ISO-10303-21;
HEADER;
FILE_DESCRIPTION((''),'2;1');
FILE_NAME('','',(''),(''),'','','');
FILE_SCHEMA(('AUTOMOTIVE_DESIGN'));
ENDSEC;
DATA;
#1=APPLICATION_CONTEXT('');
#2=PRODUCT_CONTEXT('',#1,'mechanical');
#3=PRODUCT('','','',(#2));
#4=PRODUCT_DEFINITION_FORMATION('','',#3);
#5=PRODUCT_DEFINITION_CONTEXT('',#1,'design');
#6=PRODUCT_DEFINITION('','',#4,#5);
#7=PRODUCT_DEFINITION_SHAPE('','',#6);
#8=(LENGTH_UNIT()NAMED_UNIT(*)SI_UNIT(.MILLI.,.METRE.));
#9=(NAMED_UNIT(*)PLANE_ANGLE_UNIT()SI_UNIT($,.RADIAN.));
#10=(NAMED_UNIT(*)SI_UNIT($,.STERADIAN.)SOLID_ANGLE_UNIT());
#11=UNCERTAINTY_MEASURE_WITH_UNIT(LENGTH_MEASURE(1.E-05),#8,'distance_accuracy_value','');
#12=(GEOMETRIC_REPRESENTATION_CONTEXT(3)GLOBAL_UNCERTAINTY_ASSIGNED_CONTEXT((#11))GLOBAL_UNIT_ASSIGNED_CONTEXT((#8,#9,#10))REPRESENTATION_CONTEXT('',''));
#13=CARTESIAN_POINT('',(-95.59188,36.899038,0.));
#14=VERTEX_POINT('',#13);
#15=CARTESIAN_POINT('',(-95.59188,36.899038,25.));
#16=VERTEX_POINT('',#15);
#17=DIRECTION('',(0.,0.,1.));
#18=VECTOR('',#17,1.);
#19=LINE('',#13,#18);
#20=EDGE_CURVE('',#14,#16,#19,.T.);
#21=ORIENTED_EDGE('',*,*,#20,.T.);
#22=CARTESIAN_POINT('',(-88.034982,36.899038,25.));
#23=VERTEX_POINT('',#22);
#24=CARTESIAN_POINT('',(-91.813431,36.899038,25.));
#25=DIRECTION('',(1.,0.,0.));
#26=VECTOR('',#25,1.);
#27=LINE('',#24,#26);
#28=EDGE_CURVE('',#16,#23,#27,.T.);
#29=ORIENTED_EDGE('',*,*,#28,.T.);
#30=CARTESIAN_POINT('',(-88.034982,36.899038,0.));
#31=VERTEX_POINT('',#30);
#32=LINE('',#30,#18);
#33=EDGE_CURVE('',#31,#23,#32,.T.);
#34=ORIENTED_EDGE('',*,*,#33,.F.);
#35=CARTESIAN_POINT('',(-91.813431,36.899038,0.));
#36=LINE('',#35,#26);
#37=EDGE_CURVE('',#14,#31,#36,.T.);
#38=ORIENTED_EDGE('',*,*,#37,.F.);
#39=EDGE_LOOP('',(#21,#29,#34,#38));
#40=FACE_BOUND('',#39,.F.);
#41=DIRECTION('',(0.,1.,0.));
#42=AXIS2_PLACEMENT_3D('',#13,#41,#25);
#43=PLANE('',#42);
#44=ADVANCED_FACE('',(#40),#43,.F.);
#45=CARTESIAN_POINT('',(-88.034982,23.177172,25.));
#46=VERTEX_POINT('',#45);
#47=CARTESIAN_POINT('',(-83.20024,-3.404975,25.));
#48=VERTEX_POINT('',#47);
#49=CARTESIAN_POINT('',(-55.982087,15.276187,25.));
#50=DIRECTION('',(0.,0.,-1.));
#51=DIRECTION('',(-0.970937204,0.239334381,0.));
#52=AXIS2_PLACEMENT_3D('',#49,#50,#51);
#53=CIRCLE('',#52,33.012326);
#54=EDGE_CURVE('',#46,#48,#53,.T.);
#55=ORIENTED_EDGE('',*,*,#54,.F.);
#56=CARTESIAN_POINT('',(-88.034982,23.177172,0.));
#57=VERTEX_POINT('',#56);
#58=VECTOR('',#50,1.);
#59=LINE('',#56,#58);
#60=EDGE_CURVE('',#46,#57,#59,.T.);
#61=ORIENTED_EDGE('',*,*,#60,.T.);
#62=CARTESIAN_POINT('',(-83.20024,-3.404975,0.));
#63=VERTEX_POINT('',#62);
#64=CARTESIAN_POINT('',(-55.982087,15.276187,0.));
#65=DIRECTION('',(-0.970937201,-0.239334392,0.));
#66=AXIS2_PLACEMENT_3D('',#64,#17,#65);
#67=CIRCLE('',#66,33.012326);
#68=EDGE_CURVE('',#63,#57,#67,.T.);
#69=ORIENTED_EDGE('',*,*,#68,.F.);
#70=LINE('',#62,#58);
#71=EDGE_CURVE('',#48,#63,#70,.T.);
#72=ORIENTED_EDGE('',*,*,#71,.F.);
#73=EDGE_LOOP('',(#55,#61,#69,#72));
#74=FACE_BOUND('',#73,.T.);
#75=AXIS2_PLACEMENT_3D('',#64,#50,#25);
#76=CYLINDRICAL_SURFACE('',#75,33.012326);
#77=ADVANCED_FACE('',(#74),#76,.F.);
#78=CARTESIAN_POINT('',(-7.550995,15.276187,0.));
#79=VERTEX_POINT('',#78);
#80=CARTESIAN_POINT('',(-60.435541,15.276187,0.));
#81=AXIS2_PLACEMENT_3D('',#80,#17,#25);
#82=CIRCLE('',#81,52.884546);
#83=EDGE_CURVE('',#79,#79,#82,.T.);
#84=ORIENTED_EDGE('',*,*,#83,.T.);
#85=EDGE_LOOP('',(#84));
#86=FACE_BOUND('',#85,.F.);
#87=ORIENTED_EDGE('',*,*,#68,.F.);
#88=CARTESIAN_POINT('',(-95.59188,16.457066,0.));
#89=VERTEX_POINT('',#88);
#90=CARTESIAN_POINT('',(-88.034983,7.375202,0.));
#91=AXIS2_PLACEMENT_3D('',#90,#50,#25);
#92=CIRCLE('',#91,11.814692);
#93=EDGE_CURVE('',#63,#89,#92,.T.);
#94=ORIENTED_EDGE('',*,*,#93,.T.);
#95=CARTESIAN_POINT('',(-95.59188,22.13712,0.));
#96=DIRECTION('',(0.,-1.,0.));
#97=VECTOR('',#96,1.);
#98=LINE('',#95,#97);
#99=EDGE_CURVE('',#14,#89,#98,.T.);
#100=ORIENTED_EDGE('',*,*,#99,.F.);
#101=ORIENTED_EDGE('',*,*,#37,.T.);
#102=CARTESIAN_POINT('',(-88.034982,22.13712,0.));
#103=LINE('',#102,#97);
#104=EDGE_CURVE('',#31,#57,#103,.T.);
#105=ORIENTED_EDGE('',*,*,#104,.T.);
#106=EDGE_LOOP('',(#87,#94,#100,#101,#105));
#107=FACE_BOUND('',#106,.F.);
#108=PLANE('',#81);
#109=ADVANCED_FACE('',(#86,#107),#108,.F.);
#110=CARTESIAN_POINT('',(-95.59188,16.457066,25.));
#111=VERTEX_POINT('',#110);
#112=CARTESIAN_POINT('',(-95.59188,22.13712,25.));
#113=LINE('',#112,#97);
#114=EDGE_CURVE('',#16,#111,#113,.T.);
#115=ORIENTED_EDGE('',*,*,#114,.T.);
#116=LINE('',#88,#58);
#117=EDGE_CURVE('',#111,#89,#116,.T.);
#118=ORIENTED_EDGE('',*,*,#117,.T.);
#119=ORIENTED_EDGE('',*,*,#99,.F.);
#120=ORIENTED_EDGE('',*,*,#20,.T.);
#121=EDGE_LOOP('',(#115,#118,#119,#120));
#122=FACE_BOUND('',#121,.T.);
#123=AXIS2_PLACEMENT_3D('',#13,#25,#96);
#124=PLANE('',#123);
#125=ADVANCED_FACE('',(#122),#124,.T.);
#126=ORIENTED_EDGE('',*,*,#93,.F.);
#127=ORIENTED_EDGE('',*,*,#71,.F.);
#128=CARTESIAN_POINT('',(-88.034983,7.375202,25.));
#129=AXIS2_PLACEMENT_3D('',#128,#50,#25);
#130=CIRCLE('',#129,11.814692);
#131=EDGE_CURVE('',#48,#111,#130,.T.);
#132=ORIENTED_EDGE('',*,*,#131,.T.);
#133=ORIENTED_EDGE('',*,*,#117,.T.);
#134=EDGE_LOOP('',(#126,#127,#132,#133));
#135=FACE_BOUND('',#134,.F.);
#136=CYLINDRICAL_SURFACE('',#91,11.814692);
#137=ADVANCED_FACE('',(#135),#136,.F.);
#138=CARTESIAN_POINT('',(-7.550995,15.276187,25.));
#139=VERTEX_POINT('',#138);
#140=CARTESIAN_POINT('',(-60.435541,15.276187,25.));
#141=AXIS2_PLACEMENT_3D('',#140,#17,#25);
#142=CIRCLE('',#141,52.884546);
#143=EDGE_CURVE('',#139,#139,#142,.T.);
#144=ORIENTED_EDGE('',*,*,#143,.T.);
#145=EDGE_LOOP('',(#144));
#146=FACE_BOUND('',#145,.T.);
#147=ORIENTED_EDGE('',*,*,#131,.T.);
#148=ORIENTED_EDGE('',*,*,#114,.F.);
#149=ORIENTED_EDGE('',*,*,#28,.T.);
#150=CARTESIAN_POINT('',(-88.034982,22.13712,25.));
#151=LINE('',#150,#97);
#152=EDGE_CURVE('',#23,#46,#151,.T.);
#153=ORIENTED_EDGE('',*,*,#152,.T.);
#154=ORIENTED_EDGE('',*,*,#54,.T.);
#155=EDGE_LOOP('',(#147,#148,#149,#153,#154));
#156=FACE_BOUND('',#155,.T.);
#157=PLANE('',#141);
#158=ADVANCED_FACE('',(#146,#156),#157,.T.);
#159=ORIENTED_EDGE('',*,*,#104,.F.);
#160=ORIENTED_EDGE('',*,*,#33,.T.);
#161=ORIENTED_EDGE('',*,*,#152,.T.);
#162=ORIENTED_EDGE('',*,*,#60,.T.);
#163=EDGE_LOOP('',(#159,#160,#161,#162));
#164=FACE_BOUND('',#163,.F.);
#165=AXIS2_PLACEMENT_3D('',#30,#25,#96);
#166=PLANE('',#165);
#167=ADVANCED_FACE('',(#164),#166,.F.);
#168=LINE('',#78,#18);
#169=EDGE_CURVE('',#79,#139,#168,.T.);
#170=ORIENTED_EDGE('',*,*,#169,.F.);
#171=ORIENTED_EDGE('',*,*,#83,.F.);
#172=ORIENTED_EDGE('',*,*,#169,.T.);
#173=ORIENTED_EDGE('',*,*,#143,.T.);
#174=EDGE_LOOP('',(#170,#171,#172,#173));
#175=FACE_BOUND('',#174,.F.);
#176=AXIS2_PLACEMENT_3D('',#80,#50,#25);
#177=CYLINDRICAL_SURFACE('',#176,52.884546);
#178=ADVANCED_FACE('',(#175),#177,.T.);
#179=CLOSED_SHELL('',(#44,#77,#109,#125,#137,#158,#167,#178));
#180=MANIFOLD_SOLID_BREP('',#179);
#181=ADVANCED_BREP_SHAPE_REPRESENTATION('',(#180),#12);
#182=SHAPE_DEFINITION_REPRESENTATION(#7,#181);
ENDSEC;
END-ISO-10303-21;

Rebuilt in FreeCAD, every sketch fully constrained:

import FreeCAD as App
import Part
import Sketcher

V = App.Vector
Q = App.Units.Quantity

doc = App.newDocument("Part")
body = doc.addObject("PartDesign::Body", "Body")

# Sketch on XY plane
sketch1 = doc.addObject("Sketcher::SketchObject", "Sketch")
body.addObject(sketch1)
sketch1.AttachmentSupport = (doc.XY_Plane, [""])
sketch1.MapMode = "FlatFace"
sketch1.addGeometry(Part.Circle(V(-60, 15, 0), V(0, 0, 1), 53), False)
sketch1.addGeometry(Part.Circle(V(-56, 15, 0), V(0, 0, 1), 33), False)
sketch1.addConstraint(Sketcher.Constraint("Horizontal", 0, 3, 1, 3))
sketch1.addConstraint(Sketcher.Constraint("Diameter", 0, Q("105.769092 mm")))
sketch1.addConstraint(Sketcher.Constraint("Diameter", 1, Q("66.024652 mm")))
sketch1.addConstraint(Sketcher.Constraint("DistanceX", 0, 3, -1, 1, Q("60.435541 mm")))
sketch1.addConstraint(Sketcher.Constraint("DistanceY", -1, 1, 0, 3, Q("15.276187 mm")))
sketch1.addConstraint(Sketcher.Constraint("DistanceX", 1, 3, -1, 1, Q("55.982087 mm")))
pad1 = doc.addObject("PartDesign::Pad", "Pad")
body.addObject(pad1)
pad1.Profile = sketch1
pad1.Length = 25

# Sketch on XY plane
sketch2 = doc.addObject("Sketcher::SketchObject", "Sketch001")
body.addObject(sketch2)
sketch2.AttachmentSupport = (doc.XY_Plane, [""])
sketch2.MapMode = "FlatFace"
sketch2.addGeometry(Part.LineSegment(V(-96, 7, 0), V(-96, 37, 0)), False)
sketch2.addGeometry(Part.LineSegment(V(-96, 37, 0), V(-88, 37, 0)), False)
sketch2.addGeometry(Part.LineSegment(V(-88, 37, 0), V(-88, 7, 0)), False)
sketch2.addGeometry(Part.LineSegment(V(-88, 7, 0), V(-96, 7, 0)), False)
sketch2.addConstraint(Sketcher.Constraint("Coincident", 0, 2, 1, 1))
sketch2.addConstraint(Sketcher.Constraint("Coincident", 1, 2, 2, 1))
sketch2.addConstraint(Sketcher.Constraint("Coincident", 2, 2, 3, 1))
sketch2.addConstraint(Sketcher.Constraint("Coincident", 3, 2, 0, 1))
sketch2.addConstraint(Sketcher.Constraint("Vertical", 0))
sketch2.addConstraint(Sketcher.Constraint("Horizontal", 1))
sketch2.addConstraint(Sketcher.Constraint("Vertical", 2))
sketch2.addConstraint(Sketcher.Constraint("Horizontal", 3))
sketch2.addConstraint(Sketcher.Constraint("DistanceY", -1, 1, 2, 2, Q("7.375202 mm")))
sketch2.addConstraint(Sketcher.Constraint("DistanceX", 1, 1, 1, 2, Q("7.556897 mm")))
sketch2.addConstraint(Sketcher.Constraint("DistanceY", 0, 1, 0, 2, Q("29.523836 mm")))
sketch2.addConstraint(Sketcher.Constraint("DistanceX", 0, 2, -1, 1, Q("95.59188 mm")))
pocket1 = doc.addObject("PartDesign::Pocket", "Pocket")
body.addObject(pocket1)
pocket1.Profile = sketch2
pocket1.Length = 25
pocket1.Reversed = True

# Sketch on XY plane
sketch3 = doc.addObject("Sketcher::SketchObject", "Sketch002")
body.addObject(sketch3)
sketch3.AttachmentSupport = (doc.XY_Plane, [""])
sketch3.MapMode = "FlatFace"
sketch3.addGeometry(Part.Circle(V(-88, 7, 0), V(0, 0, 1), 12), False)
sketch3.addConstraint(Sketcher.Constraint("Diameter", 0, Q("23.629384 mm")))
sketch3.addConstraint(Sketcher.Constraint("DistanceY", -1, 1, 0, 3, Q("7.375202 mm")))
sketch3.addConstraint(Sketcher.Constraint("DistanceX", 0, 3, -1, 1, Q("88.034983 mm")))
pocket2 = doc.addObject("PartDesign::Pocket", "Pocket001")
body.addObject(pocket2)
pocket2.Profile = sketch3
pocket2.Length = 25
pocket2.Reversed = True

doc.recompute()
